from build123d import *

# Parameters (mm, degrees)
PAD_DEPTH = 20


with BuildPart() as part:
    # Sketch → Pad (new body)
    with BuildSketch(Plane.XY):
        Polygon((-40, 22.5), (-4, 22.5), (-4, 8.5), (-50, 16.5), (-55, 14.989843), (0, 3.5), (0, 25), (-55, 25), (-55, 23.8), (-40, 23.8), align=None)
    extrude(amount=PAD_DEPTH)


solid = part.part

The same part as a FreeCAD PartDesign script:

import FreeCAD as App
import Part
import Sketcher
from FreeCAD import Vector
Q = App.Units.Quantity

doc = App.newDocument("Part")
body = doc.addObject("PartDesign::Body", "Body")

sketch1 = body.newObject("Sketcher::SketchObject", "Sketch")
sketch1.AttachmentSupport = (doc.getObject("XY_Plane"), [""])
sketch1.MapMode = "FlatFace"
sketch1.addGeometry(Part.LineSegment(Vector(-40, 22.5, 0), Vector(-4, 22.5, 0)), False)
sketch1.addGeometry(Part.LineSegment(Vector(-4, 22.5, 0), Vector(-4, 8.5, 0)), False)
sketch1.addGeometry(Part.LineSegment(Vector(-4, 8.5, 0), Vector(-50, 16.5, 0)), False)
sketch1.addGeometry(Part.LineSegment(Vector(-50, 16.5, 0), Vector(-55, 15, 0)), False)
sketch1.addGeometry(Part.LineSegment(Vector(-55, 15, 0), Vector(0, 3.5, 0)), False)
sketch1.addGeometry(Part.LineSegment(Vector(0, 3.5, 0), Vector(0, 25, 0)), False)
sketch1.addGeometry(Part.LineSegment(Vector(0, 25, 0), Vector(-55, 25, 0)), False)
sketch1.addGeometry(Part.LineSegment(Vector(-55, 25, 0), Vector(-55, 23.8, 0)), False)
sketch1.addGeometry(Part.LineSegment(Vector(-55, 23.8, 0), Vector(-40, 23.8, 0)), False)
sketch1.addGeometry(Part.LineSegment(Vector(-40, 23.8, 0), Vector(-40, 22.5, 0)), False)
sketch1.addConstraint(Sketcher.Constraint("Coincident", 0, 2, 1, 1))
sketch1.addConstraint(Sketcher.Constraint("Coincident", 1, 2, 2, 1))
sketch1.addConstraint(Sketcher.Constraint("Coincident", 2, 2, 3, 1))
sketch1.addConstraint(Sketcher.Constraint("Coincident", 3, 2, 4, 1))
sketch1.addConstraint(Sketcher.Constraint("Coincident", 4, 2, 5, 1))
sketch1.addConstraint(Sketcher.Constraint("Coincident", 5, 2, 6, 1))
sketch1.addConstraint(Sketcher.Constraint("Coincident", 6, 2, 7, 1))
sketch1.addConstraint(Sketcher.Constraint("Coincident", 7, 2, 8, 1))
sketch1.addConstraint(Sketcher.Constraint("Coincident", 8, 2, 9, 1))
sketch1.addConstraint(Sketcher.Constraint("Coincident", 9, 2, 0, 1))
sketch1.addConstraint(Sketcher.Constraint("Horizontal", 0))
sketch1.addConstraint(Sketcher.Constraint("Vertical", 1))
sketch1.addConstraint(Sketcher.Constraint("Vertical", 5))
sketch1.addConstraint(Sketcher.Constraint("Horizontal", 6))
sketch1.addConstraint(Sketcher.Constraint("Vertical", 7))
sketch1.addConstraint(Sketcher.Constraint("Horizontal", 8))
sketch1.addConstraint(Sketcher.Constraint("Vertical", 9))
sketch1.addConstraint(Sketcher.Constraint("PointOnObject", 4, 2, -2))
sketch1.addConstraint(Sketcher.Constraint("Vertical", 3, 2, 6, 2))
sketch1.addConstraint(Sketcher.Constraint("DistanceX", 0, 1, 0, 2, Q("36 mm")))
sketch1.addConstraint(Sketcher.Constraint("DistanceX", 6, 2, 6, 1, Q("55 mm")))
sketch1.addConstraint(Sketcher.Constraint("DistanceX", 8, 1, 8, 2, Q("15 mm")))
sketch1.addConstraint(Sketcher.Constraint("DistanceY", 1, 2, 1, 1, Q("14 mm")))
sketch1.addConstraint(Sketcher.Constraint("DistanceY", 5, 1, 5, 2, Q("21.5 mm")))
sketch1.addConstraint(Sketcher.Constraint("DistanceY", 7, 2, 7, 1, Q("1.2 mm")))
sketch1.addConstraint(Sketcher.Constraint("DistanceY", 9, 2, 9, 1, Q("1.3 mm")))
sketch1.addConstraint(Sketcher.Constraint("DistanceX", 2, 2, -1, 1, Q("50 mm")))
sketch1.addConstraint(Sketcher.Constraint("DistanceY", -1, 1, 5, 2, Q("25 mm")))
sketch1.addConstraint(Sketcher.Constraint("DistanceY", 2, 2, 0, 2, Q("6 mm")))
sketch1.addConstraint(Sketcher.Constraint("Distance", 3, Q("5.223081 mm")))
pad1 = body.newObject("PartDesign::Pad", "Pad")
pad1.Profile = sketch1
pad1.Length = 20

doc.recompute()
